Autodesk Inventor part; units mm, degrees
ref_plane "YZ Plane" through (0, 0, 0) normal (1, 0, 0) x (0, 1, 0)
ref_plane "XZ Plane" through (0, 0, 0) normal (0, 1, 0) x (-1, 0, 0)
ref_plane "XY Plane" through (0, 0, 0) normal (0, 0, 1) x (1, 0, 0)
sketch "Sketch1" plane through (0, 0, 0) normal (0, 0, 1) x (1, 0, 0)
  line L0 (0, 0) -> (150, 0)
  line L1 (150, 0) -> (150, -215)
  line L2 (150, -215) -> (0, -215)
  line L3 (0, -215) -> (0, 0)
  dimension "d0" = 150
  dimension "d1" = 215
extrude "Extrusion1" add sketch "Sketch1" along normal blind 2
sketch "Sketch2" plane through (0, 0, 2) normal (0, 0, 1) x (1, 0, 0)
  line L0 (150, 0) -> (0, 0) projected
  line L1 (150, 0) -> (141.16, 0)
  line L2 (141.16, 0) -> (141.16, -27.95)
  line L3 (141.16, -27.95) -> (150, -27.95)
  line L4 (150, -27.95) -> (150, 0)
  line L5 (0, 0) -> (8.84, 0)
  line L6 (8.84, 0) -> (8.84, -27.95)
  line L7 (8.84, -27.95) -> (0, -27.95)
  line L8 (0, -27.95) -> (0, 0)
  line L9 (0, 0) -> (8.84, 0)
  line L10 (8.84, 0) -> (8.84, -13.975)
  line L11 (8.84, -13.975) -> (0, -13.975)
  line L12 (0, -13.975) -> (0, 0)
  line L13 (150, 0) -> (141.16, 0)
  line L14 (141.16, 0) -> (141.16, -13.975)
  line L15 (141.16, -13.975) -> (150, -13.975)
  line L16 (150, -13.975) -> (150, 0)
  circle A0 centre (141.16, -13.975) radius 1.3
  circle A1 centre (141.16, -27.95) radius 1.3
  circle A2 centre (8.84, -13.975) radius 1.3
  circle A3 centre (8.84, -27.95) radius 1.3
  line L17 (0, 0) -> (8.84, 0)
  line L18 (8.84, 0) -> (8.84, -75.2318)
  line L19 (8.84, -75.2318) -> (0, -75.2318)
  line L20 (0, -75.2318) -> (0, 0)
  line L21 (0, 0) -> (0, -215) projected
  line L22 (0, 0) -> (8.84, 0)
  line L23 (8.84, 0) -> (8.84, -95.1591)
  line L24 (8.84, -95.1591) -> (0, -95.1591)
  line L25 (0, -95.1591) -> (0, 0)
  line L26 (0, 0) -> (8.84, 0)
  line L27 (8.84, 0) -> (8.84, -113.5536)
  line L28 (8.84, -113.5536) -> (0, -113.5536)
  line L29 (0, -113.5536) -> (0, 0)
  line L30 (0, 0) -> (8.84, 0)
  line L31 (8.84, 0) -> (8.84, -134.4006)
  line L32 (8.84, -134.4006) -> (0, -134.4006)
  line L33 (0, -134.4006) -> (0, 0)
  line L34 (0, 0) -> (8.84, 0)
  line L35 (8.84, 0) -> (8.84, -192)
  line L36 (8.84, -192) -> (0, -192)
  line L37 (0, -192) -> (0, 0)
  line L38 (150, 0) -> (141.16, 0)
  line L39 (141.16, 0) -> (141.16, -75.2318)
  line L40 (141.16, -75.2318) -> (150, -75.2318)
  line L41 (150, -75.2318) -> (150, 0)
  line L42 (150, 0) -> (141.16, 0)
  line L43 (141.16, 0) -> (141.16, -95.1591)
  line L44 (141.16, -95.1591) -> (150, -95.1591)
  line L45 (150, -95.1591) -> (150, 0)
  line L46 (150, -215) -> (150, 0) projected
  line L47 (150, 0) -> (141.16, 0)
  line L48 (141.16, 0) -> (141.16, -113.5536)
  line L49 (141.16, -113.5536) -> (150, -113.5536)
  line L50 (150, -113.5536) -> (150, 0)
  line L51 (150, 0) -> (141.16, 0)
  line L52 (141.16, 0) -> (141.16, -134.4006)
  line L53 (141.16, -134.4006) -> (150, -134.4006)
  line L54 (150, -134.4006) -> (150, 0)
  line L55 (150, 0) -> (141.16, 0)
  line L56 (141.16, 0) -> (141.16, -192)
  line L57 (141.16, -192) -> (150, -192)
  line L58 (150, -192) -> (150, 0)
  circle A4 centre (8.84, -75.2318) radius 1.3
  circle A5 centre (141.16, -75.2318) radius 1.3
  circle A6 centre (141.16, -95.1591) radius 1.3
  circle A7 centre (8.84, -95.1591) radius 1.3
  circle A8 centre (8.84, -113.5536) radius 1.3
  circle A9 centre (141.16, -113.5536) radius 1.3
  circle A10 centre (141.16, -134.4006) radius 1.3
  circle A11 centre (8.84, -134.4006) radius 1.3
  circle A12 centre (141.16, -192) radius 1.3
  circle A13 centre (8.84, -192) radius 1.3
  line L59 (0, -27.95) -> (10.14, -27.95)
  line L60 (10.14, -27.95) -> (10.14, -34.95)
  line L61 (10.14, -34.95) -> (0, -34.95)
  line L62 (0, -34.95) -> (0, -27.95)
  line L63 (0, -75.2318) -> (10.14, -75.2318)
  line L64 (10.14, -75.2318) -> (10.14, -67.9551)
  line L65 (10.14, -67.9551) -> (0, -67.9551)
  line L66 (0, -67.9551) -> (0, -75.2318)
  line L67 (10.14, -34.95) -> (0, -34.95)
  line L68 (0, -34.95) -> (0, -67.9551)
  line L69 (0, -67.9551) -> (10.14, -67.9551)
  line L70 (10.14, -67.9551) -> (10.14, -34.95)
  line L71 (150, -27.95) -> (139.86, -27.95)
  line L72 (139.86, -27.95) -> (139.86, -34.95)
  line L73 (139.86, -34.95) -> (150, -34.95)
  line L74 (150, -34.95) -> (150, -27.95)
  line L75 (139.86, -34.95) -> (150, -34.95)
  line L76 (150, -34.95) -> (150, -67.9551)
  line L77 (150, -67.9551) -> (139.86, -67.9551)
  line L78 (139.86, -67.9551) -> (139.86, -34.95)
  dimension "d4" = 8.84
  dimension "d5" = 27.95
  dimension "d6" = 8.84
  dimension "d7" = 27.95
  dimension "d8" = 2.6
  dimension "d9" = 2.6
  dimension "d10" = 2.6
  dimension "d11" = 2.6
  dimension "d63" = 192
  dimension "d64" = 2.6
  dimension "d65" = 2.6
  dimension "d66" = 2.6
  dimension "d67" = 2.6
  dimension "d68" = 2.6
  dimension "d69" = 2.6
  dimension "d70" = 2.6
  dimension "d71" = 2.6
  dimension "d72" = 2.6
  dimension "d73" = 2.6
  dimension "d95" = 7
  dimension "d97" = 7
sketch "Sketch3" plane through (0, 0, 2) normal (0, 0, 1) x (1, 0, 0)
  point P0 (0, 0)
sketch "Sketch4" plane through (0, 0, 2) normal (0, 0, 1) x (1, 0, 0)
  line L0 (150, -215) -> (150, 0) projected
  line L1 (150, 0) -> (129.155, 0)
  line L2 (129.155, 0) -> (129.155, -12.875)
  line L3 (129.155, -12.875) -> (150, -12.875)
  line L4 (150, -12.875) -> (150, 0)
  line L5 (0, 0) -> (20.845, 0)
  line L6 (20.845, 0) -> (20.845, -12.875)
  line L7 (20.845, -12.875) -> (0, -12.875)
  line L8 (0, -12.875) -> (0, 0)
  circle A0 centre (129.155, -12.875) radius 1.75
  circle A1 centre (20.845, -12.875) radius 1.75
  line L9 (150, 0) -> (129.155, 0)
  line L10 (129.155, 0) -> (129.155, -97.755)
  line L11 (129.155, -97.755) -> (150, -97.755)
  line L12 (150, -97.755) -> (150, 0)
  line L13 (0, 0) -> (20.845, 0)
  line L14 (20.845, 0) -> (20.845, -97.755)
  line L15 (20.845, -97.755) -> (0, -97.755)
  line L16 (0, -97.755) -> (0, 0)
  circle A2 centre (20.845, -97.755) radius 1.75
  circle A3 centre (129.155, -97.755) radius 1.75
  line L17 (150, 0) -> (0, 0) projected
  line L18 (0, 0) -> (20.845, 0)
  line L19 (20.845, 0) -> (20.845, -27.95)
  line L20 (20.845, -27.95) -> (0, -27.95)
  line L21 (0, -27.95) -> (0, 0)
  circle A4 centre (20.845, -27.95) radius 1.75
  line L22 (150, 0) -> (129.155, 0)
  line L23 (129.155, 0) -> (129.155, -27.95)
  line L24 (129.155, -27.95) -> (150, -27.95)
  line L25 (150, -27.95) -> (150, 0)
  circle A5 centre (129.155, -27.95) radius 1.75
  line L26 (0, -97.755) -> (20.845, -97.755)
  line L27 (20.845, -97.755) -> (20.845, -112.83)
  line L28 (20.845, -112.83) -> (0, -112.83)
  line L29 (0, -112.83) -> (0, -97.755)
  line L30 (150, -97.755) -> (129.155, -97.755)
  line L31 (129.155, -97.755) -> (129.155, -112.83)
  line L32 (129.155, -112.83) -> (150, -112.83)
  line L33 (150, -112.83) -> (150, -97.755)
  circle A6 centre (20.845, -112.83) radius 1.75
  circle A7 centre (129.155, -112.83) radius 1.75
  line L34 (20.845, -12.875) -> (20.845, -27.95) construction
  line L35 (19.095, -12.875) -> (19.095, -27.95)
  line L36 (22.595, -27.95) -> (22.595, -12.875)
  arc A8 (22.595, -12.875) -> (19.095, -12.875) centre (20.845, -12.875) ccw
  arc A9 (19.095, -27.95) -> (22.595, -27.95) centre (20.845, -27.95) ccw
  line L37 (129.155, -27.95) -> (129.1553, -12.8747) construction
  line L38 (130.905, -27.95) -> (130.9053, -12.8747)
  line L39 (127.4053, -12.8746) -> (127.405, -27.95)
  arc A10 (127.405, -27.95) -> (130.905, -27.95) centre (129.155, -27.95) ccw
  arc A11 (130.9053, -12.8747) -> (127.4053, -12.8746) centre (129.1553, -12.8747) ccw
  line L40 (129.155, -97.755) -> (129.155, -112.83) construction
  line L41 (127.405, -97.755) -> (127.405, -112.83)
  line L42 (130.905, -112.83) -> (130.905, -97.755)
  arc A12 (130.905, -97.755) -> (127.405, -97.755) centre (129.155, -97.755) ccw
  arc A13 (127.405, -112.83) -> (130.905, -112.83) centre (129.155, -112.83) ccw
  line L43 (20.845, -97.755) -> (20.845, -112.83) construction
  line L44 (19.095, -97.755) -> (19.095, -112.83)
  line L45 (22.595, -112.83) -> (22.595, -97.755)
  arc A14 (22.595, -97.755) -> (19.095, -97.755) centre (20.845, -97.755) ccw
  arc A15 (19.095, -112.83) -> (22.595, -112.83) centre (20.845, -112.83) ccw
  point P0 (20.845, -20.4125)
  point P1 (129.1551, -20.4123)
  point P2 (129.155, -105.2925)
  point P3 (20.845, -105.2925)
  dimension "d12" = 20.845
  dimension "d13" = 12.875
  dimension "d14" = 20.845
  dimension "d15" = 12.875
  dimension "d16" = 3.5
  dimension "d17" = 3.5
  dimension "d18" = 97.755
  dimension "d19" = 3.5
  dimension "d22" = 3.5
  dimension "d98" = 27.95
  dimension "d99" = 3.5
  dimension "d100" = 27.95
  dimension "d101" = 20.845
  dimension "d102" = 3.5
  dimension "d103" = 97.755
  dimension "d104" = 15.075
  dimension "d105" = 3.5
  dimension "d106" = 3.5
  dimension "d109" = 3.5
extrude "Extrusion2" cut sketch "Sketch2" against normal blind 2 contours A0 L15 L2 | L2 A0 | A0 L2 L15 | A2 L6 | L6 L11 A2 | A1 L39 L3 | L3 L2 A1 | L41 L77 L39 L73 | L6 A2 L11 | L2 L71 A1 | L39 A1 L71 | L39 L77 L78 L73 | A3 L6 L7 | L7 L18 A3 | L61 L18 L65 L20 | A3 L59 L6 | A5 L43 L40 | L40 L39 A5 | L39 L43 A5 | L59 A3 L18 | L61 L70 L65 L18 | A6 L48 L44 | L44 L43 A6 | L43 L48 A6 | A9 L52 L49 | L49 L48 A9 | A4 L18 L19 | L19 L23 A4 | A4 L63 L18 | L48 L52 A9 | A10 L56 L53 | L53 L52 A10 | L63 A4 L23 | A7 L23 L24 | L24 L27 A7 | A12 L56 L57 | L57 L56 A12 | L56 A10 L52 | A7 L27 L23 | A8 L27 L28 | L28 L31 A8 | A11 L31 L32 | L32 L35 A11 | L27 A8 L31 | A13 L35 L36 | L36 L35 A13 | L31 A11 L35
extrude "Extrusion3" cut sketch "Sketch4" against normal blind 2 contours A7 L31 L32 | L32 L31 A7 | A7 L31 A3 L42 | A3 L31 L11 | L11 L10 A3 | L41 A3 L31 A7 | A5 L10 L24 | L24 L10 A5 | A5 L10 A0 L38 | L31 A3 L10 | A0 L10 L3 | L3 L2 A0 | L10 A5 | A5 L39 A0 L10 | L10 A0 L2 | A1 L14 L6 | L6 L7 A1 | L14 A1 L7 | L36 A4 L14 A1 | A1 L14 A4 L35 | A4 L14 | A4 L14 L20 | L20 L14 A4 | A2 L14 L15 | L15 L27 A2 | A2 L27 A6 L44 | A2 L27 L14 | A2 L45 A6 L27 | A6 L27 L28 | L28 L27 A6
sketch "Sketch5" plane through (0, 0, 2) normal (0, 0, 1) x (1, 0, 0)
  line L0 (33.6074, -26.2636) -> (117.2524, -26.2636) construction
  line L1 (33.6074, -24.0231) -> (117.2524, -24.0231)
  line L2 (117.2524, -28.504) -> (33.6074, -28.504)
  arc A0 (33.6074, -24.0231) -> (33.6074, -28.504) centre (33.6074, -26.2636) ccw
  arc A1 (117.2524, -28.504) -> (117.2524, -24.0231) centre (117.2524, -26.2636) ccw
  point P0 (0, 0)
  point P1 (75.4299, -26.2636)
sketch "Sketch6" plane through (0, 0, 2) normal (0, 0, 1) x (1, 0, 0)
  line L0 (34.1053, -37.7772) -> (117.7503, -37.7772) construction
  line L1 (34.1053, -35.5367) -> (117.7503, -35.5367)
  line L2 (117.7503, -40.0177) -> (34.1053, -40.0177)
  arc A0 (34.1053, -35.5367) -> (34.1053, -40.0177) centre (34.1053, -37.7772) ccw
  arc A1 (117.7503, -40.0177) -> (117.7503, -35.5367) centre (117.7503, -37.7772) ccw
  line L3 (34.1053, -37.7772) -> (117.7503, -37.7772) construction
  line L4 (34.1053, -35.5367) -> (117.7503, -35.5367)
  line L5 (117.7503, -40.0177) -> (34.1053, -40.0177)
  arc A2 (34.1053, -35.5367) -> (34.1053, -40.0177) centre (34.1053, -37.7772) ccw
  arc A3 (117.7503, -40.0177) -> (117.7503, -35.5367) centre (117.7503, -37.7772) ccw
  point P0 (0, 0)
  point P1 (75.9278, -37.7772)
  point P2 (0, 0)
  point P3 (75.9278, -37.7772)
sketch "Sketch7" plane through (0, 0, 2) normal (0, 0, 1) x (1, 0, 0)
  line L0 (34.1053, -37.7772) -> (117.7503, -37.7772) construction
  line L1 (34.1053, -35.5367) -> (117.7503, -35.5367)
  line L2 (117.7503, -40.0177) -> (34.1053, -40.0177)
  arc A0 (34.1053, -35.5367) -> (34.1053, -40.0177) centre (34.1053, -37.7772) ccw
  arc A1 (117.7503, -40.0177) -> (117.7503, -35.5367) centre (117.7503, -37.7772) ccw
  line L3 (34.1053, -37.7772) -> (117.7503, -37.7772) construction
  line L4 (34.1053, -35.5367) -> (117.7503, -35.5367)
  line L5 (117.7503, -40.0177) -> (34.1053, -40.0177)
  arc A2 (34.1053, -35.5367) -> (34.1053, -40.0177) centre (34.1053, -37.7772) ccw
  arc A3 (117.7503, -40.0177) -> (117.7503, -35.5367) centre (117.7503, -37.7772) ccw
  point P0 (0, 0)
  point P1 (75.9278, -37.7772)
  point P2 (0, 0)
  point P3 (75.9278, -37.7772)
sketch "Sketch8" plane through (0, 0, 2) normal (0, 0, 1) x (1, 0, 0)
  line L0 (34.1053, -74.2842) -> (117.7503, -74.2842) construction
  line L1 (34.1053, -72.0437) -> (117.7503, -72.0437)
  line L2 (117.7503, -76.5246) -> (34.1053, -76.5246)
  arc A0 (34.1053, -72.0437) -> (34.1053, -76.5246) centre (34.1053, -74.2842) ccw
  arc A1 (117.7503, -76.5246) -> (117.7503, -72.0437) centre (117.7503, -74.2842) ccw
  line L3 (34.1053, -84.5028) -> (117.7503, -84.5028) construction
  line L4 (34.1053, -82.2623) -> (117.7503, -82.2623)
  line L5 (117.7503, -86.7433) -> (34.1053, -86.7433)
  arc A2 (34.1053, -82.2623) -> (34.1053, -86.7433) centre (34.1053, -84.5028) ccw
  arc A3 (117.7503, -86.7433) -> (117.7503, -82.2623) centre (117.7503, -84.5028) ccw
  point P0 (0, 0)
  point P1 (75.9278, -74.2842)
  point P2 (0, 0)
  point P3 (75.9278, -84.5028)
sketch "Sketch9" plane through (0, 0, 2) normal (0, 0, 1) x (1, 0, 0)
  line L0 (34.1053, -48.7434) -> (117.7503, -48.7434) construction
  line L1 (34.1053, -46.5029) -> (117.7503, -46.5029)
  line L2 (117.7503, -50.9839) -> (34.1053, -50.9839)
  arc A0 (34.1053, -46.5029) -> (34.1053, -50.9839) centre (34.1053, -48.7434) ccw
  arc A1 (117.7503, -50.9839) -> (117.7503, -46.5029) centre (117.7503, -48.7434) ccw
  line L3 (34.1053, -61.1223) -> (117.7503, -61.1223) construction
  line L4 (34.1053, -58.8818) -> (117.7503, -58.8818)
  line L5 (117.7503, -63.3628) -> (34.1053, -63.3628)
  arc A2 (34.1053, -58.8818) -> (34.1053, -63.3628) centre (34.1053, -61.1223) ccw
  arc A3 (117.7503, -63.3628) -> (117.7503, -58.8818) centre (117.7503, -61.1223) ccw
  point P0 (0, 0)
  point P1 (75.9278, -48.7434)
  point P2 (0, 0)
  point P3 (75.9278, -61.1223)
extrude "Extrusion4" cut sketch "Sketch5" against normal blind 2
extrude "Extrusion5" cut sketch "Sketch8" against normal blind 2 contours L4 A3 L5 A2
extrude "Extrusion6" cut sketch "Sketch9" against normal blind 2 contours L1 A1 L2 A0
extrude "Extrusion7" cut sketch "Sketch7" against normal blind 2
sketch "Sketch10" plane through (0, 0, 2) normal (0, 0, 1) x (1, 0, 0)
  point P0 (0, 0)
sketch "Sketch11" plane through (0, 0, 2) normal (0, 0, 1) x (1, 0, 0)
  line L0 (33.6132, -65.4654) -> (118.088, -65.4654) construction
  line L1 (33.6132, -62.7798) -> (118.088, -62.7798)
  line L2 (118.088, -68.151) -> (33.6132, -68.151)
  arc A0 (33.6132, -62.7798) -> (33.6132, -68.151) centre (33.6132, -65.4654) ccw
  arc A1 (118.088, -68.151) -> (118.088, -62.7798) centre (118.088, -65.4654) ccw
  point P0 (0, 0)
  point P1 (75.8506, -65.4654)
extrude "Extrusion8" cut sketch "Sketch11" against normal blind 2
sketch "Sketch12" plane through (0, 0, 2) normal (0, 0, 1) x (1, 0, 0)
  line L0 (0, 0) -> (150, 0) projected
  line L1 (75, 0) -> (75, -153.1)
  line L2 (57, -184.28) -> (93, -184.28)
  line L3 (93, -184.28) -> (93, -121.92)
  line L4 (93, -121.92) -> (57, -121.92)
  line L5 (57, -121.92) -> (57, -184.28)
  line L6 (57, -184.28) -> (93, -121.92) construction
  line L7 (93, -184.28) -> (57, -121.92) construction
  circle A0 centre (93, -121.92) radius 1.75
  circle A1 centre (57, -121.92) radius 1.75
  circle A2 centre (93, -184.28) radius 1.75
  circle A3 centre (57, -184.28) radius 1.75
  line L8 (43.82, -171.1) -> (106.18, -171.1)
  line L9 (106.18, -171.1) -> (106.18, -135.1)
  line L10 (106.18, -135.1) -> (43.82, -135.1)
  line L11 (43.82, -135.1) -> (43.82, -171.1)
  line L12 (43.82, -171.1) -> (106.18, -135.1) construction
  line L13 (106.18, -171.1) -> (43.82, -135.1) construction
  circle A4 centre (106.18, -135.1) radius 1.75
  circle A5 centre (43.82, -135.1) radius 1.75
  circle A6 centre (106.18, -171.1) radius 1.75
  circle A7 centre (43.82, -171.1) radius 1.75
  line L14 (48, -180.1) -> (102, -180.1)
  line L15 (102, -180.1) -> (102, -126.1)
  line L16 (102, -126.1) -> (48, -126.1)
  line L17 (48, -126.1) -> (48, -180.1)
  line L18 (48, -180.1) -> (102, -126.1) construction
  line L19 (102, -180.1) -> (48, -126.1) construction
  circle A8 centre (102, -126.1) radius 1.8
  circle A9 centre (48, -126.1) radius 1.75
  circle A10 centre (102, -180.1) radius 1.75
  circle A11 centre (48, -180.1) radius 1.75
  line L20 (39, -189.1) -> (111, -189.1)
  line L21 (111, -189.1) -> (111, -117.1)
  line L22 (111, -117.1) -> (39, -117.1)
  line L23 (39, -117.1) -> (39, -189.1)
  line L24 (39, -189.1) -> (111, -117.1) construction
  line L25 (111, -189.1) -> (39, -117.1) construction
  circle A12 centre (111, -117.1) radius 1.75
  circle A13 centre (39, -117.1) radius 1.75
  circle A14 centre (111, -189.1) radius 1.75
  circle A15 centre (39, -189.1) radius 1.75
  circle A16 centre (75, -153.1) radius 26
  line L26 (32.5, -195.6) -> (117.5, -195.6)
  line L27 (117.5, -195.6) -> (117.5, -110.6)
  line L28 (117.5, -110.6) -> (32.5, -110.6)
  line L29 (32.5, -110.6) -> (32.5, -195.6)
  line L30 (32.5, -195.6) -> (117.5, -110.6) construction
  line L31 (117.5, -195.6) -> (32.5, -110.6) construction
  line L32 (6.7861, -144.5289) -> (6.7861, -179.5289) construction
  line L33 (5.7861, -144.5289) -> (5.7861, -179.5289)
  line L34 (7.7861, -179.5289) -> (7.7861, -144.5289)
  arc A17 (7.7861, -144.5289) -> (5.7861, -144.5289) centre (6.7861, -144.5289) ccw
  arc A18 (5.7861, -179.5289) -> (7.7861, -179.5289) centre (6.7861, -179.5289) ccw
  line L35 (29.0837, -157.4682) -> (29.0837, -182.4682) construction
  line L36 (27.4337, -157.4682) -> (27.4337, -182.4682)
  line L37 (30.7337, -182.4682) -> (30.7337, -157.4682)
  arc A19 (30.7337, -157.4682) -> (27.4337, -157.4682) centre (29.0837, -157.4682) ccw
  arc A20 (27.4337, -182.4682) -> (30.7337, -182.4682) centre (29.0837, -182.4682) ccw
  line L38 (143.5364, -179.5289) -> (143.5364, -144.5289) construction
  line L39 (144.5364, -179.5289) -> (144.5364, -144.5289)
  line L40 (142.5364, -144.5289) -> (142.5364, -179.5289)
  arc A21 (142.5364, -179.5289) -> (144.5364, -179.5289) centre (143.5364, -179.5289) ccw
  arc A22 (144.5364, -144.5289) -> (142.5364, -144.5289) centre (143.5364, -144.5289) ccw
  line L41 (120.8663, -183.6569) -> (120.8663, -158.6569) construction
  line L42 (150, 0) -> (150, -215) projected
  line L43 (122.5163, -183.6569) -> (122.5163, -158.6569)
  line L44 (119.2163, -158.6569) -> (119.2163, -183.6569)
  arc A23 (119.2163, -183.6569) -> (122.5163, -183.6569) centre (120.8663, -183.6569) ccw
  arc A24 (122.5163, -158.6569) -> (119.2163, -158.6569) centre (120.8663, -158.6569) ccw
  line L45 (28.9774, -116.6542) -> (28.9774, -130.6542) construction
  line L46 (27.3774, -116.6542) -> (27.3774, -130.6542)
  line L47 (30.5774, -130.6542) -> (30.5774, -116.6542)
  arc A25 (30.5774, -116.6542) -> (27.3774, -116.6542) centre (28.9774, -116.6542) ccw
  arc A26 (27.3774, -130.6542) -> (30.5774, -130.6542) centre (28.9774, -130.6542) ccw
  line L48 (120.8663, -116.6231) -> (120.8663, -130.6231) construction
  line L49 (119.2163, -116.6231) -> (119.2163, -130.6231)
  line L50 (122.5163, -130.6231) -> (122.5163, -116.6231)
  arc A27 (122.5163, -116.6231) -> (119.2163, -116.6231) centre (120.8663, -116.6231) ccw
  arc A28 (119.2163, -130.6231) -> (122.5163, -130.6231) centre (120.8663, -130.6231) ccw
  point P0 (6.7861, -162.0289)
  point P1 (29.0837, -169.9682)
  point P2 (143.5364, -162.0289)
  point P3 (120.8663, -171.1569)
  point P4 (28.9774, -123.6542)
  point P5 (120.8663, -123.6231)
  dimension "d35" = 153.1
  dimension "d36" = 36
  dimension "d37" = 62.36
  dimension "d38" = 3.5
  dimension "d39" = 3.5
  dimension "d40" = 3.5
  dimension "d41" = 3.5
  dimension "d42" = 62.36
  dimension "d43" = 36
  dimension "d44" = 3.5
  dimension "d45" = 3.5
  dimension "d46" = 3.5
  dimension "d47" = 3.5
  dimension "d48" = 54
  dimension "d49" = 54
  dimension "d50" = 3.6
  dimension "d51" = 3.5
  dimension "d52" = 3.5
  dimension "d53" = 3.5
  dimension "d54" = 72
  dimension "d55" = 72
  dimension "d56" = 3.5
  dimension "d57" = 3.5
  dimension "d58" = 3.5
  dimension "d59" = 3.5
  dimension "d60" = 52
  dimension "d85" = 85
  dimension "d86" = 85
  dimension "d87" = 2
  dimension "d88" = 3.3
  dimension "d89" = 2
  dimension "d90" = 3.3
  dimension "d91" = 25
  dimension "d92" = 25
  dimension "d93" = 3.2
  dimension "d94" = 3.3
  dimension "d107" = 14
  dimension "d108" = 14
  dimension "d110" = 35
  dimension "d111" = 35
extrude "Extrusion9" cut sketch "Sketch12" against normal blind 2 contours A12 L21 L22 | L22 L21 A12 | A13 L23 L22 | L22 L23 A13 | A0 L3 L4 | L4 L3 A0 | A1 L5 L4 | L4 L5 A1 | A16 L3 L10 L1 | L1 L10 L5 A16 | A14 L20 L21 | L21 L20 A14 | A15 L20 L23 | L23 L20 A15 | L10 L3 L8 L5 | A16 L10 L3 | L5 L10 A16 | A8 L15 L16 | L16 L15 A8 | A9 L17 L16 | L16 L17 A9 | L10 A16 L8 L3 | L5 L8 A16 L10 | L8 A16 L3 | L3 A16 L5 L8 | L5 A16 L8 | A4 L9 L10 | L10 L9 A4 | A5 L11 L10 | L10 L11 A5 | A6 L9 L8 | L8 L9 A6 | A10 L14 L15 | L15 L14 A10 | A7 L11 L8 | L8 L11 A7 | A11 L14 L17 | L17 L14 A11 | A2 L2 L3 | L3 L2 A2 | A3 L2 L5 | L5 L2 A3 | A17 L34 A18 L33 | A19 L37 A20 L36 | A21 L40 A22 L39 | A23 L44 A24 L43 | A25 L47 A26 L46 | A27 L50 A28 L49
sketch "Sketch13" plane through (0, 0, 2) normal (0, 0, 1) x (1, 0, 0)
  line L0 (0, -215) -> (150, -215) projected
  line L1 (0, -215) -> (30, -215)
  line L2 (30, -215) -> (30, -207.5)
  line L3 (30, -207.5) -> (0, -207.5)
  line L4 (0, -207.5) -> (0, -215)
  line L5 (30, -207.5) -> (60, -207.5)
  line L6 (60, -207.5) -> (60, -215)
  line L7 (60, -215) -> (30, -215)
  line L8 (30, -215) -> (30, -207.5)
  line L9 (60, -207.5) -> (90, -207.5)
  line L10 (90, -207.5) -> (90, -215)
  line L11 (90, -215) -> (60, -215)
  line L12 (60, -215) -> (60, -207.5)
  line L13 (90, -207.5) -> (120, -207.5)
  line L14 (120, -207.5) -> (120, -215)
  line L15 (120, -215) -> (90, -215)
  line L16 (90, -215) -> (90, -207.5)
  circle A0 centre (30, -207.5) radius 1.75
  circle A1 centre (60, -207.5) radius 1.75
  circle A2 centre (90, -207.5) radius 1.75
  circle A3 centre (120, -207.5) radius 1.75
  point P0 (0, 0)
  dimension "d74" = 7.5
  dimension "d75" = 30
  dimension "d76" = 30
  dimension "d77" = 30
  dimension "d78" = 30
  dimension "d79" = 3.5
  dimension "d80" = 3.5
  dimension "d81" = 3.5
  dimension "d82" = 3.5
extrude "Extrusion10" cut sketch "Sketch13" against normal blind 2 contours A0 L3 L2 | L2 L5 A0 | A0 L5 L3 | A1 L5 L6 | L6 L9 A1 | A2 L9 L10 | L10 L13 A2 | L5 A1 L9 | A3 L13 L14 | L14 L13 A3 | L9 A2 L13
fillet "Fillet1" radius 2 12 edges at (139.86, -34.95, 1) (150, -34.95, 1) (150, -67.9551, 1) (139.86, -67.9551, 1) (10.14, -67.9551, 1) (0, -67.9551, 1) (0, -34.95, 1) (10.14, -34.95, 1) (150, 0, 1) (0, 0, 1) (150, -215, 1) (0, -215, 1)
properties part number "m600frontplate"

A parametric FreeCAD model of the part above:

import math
import FreeCAD as App
import Part
import Sketcher
from FreeCAD import Vector
Q = App.Units.Quantity


def edges_at(feature, points):
    """Names of the edges that pass closest to the given points."""
    edges = feature.Shape.Edges
    near = lambda p: min(range(len(edges)), key=lambda i: edges[i].distToShape(Part.Vertex(*p))[0])
    return sorted({f"Edge{near(p) + 1}" for p in points})

doc = App.newDocument("Part")
body = doc.addObject("PartDesign::Body", "Body")

# Sketch on XY plane
sketch1 = body.newObject("Sketcher::SketchObject", "Sketch")
sketch1.AttachmentSupport = (doc.getObject("XY_Plane"), [""])
sketch1.MapMode = "FlatFace"
sketch1.addGeometry([
    Part.LineSegment(Vector(150, 0, 0), Vector(0, 0, 0)),
    Part.LineSegment(Vector(0, 0, 0), Vector(0, -215, 0)),
    Part.LineSegment(Vector(0, -215, 0), Vector(150, -215, 0)),
    Part.LineSegment(Vector(150, -215, 0), Vector(150, 0, 0)),
], False)
sketch1.addConstraint([
    Sketcher.Constraint("Coincident", 0, 2, 1, 1),
    Sketcher.Constraint("Coincident", 1, 2, 2, 1),
    Sketcher.Constraint("Coincident", 2, 2, 3, 1),
    Sketcher.Constraint("Coincident", 3, 2, 0, 1),
    Sketcher.Constraint("Horizontal", 0),
    Sketcher.Constraint("Vertical", 1),
    Sketcher.Constraint("Horizontal", 2),
    Sketcher.Constraint("Vertical", 3),
    Sketcher.Constraint("Coincident", 0, 2, -1, 1),
    Sketcher.Constraint("DistanceX", 0, 2, 0, 1, Q("150 mm")),
    Sketcher.Constraint("DistanceY", 1, 2, 1, 1, Q("215 mm")),
])
pad1 = body.newObject("PartDesign::Pad", "Pad")
pad1.Profile = sketch1
pad1.Length = 2

# Sketch on XY plane
sketch2 = body.newObject("Sketcher::SketchObject", "Sketch001")
sketch2.AttachmentSupport = (doc.getObject("XY_Plane"), [""])
sketch2.MapMode = "FlatFace"
sketch2.AttachmentOffset = App.Placement(Vector(0, 0, 2), App.Rotation())
sketch2.addGeometry([
    Part.Circle(Vector(141.2, -14, 0), Vector(0, 0, 1), 1.3),  # 0
    Part.Circle(Vector(8.8, -14, 0), Vector(0, 0, 1), 1.3),  # 1
    Part.Circle(Vector(141.2, -27.9, 0), Vector(0, 0, 1), 1.3),  # 2
    Part.LineSegment(Vector(150, -68, 0), Vector(150, -35, 0)),  # 3
    Part.LineSegment(Vector(150, -35, 0), Vector(139.9, -35, 0)),  # 4
    Part.LineSegment(Vector(139.9, -35, 0), Vector(139.9, -68, 0)),  # 5
    Part.LineSegment(Vector(139.9, -68, 0), Vector(150, -68, 0)),  # 6
    Part.Circle(Vector(8.8, -27.9, 0), Vector(0, 0, 1), 1.3),  # 7
    Part.LineSegment(Vector(0, -35, 0), Vector(0, -68, 0)),  # 8
    Part.LineSegment(Vector(0, -68, 0), Vector(10.1, -68, 0)),  # 9
    Part.LineSegment(Vector(10.1, -68, 0), Vector(10.1, -35, 0)),  # 10
    Part.LineSegment(Vector(10.1, -35, 0), Vector(0, -35, 0)),  # 11
    Part.Circle(Vector(141.2, -75.2, 0), Vector(0, 0, 1), 1.3),  # 12
    Part.Circle(Vector(141.2, -95.2, 0), Vector(0, 0, 1), 1.3),  # 13
    Part.Circle(Vector(141.2, -113.6, 0), Vector(0, 0, 1), 1.3),  # 14
    Part.Circle(Vector(8.8, -75.2, 0), Vector(0, 0, 1), 1.3),  # 15
    Part.Circle(Vector(141.2, -134.4, 0), Vector(0, 0, 1), 1.3),  # 16
    Part.Circle(Vector(8.8, -95.2, 0), Vector(0, 0, 1), 1.3),  # 17
    Part.Circle(Vector(141.2, -192, 0), Vector(0, 0, 1), 1.3),  # 18
    Part.Circle(Vector(8.8, -113.6, 0), Vector(0, 0, 1), 1.3),  # 19
    Part.Circle(Vector(8.8, -134.4, 0), Vector(0, 0, 1), 1.3),  # 20
    Part.Circle(Vector(8.8, -192, 0), Vector(0, 0, 1), 1.3),  # 21
], False)
sketch2.addConstraint([
    Sketcher.Constraint("Coincident", 3, 2, 4, 1),
    Sketcher.Constraint("Coincident", 4, 2, 5, 1),
    Sketcher.Constraint("Coincident", 5, 2, 6, 1),
    Sketcher.Constraint("Coincident", 6, 2, 3, 1),
    Sketcher.Constraint("Coincident", 8, 2, 9, 1),
    Sketcher.Constraint("Coincident", 9, 2, 10, 1),
    Sketcher.Constraint("Coincident", 10, 2, 11, 1),
    Sketcher.Constraint("Coincident", 11, 2, 8, 1),
    Sketcher.Constraint("Vertical", 3),
    Sketcher.Constraint("Horizontal", 4),
    Sketcher.Constraint("Vertical", 5),
    Sketcher.Constraint("Horizontal", 6),
    Sketcher.Constraint("Vertical", 8),
    Sketcher.Constraint("Horizontal", 9),
    Sketcher.Constraint("Vertical", 10),
    Sketcher.Constraint("Horizontal", 11),
    Sketcher.Constraint("Equal", 0, 1),
    Sketcher.Constraint("Equal", 1, 2),
    Sketcher.Constraint("Equal", 2, 7),
    Sketcher.Constraint("Equal", 7, 12),
    Sketcher.Constraint("Equal", 12, 13),
    Sketcher.Constraint("Equal", 13, 14),
    Sketcher.Constraint("Equal", 14, 15),
    Sketcher.Constraint("Equal", 15, 16),
    Sketcher.Constraint("Equal", 16, 17),
    Sketcher.Constraint("Equal", 17, 18),
    Sketcher.Constraint("Equal", 18, 19),
    Sketcher.Constraint("Equal", 19, 20),
    Sketcher.Constraint("Equal", 20, 21),
    Sketcher.Constraint("PointOnObject", 8, 2, -2),
    Sketcher.Constraint("Horizontal", 0, 3, 1, 3),
    Sketcher.Constraint("Horizontal", 2, 3, 7, 3),
    Sketcher.Constraint("Horizontal", 12, 3, 15, 3),
    Sketcher.Constraint("Horizontal", 13, 3, 17, 3),
    Sketcher.Constraint("Horizontal", 14, 3, 19, 3),
    Sketcher.Constraint("Horizontal", 16, 3, 20, 3),
    Sketcher.Constraint("Horizontal", 18, 3, 21, 3),
    Sketcher.Constraint("Horizontal", 6, 2, 8, 2),
    Sketcher.Constraint("Horizontal", 4, 2, 10, 2),
    Sketcher.Constraint("Vertical", 0, 3, 2, 3),
    Sketcher.Constraint("Vertical", 1, 3, 7, 3),
    Sketcher.Constraint("Vertical", 2, 3, 12, 3),
    Sketcher.Constraint("Vertical", 12, 3, 13, 3),
    Sketcher.Constraint("Vertical", 13, 3, 14, 3),
    Sketcher.Constraint("Vertical", 7, 3, 15, 3),
    Sketcher.Constraint("Vertical", 14, 3, 16, 3),
    Sketcher.Constraint("Vertical", 15, 3, 17, 3),
    Sketcher.Constraint("Vertical", 16, 3, 18, 3),
    Sketcher.Constraint("Vertical", 17, 3, 19, 3),
    Sketcher.Constraint("Vertical", 19, 3, 20, 3),
    Sketcher.Constraint("Vertical", 20, 3, 21, 3),
    Sketcher.Constraint("Equal", 6, 9),
    Sketcher.Constraint("Diameter", 0, Q("2.6 mm")),
    Sketcher.Constraint("DistanceY", 18, 3, -1, 1, Q("192 mm")),
    Sketcher.Constraint("DistanceY", 3, 2, 2, 3, Q("7 mm")),
    Sketcher.Constraint("DistanceX", -1, 1, 1, 3, Q("8.84 mm")),
    Sketcher.Constraint("DistanceY", 2, 3, -1, 1, Q("27.95 mm")),
    Sketcher.Constraint("DistanceX", 2, 3, 3, 2, Q("8.84 mm")),
    Sketcher.Constraint("DistanceX", -1, 1, 3, 2, Q("150 mm")),
    Sketcher.Constraint("DistanceX", 4, 2, 4, 1, Q("10.14 mm")),
    Sketcher.Constraint("DistanceY", 3, 1, 3, 2, Q("33.005 mm")),
    Sketcher.Constraint("DistanceY", 8, 2, 1, 3, Q("53.98 mm")),
    Sketcher.Constraint("DistanceY", 13, 3, -1, 1, Q("95.159 mm")),
    Sketcher.Constraint("DistanceY", 16, 3, 14, 3, Q("20.847 mm")),
    Sketcher.Constraint("DistanceY", 12, 3, -1, 1, Q("75.2318 mm")),
    Sketcher.Constraint("DistanceY", 14, 3, -1, 1, Q("113.5536 mm")),
])
pocket1 = body.newObject("PartDesign::Pocket", "Pocket")
pocket1.Profile = sketch2
pocket1.Length = 2

# Sketch on XY plane
sketch3 = body.newObject("Sketcher::SketchObject", "Sketch002")
sketch3.AttachmentSupport = (doc.getObject("XY_Plane"), [""])
sketch3.MapMode = "FlatFace"
sketch3.AttachmentOffset = App.Placement(Vector(0, 0, 2), App.Rotation())
sketch3.addGeometry([
    Part.ArcOfCircle(Part.Circle(Vector(129.2, -112.8, 0), Vector(0, 0, 1), 1.8), math.radians(180), math.radians(360)),  # 0
    Part.LineSegment(Vector(130.9, -112.8, 0), Vector(130.9, -97.8, 0)),  # 1
    Part.ArcOfCircle(Part.Circle(Vector(129.2, -97.8, 0), Vector(0, 0, 1), 1.8), math.radians(0), math.radians(180)),  # 2
    Part.LineSegment(Vector(127.4, -97.8, 0), Vector(127.4, -112.8, 0)),  # 3
    Part.LineSegment(Vector(130.9, -27.9, 0), Vector(130.9, -12.9, 0)),  # 4
    Part.ArcOfCircle(Part.Circle(Vector(129.2, -12.9, 0), Vector(0, 0, 1), 1.8), math.radians(0), math.radians(180)),  # 5
    Part.LineSegment(Vector(127.4, -12.9, 0), Vector(127.4, -27.9, 0)),  # 6
    Part.ArcOfCircle(Part.Circle(Vector(129.2, -27.9, 0), Vector(0, 0, 1), 1.8), math.radians(180), math.radians(360)),  # 7
    Part.ArcOfCircle(Part.Circle(Vector(20.8, -12.9, 0), Vector(0, 0, 1), 1.8), math.radians(0), math.radians(180)),  # 8
    Part.LineSegment(Vector(19.1, -12.9, 0), Vector(19.1, -27.9, 0)),  # 9
    Part.ArcOfCircle(Part.Circle(Vector(20.8, -27.9, 0), Vector(0, 0, 1), 1.8), math.radians(180), math.radians(360)),  # 10
    Part.LineSegment(Vector(22.6, -27.9, 0), Vector(22.6, -12.9, 0)),  # 11
    Part.LineSegment(Vector(19.1, -97.8, 0), Vector(19.1, -112.8, 0)),  # 12
    Part.ArcOfCircle(Part.Circle(Vector(20.8, -112.8, 0), Vector(0, 0, 1), 1.8), math.radians(180), math.radians(360)),  # 13
    Part.LineSegment(Vector(22.6, -112.8, 0), Vector(22.6, -97.8, 0)),  # 14
    Part.ArcOfCircle(Part.Circle(Vector(20.8, -97.8, 0), Vector(0, 0, 1), 1.8), math.radians(0), math.radians(180)),  # 15
], False)
sketch3.addConstraint([
    Sketcher.Constraint("Tangent", 0, 2, 1, 1),
    Sketcher.Constraint("Tangent", 1, 2, 2, 1),
    Sketcher.Constraint("Tangent", 2, 2, 3, 1),
    Sketcher.Constraint("Tangent", 3, 2, 0, 1),
    Sketcher.Constraint("Tangent", 4, 2, 5, 1),
    Sketcher.Constraint("Tangent", 5, 2, 6, 1),
    Sketcher.Constraint("Tangent", 6, 2, 7, 1),
    Sketcher.Constraint("Tangent", 7, 2, 4, 1),
    Sketcher.Constraint("Tangent", 8, 2, 9, 1),
    Sketcher.Constraint("Tangent", 9, 2, 10, 1),
    Sketcher.Constraint("Tangent", 10, 2, 11, 1),
    Sketcher.Constraint("Tangent", 11, 2, 8, 1),
    Sketcher.Constraint("Tangent", 12, 2, 13, 1),
    Sketcher.Constraint("Tangent", 13, 2, 14, 1),
    Sketcher.Constraint("Tangent", 14, 2, 15, 1),
    Sketcher.Constraint("Tangent", 15, 2, 12, 1),
    Sketcher.Constraint("Vertical", 1),
    Sketcher.Constraint("Vertical", 3),
    Sketcher.Constraint("Vertical", 9),
    Sketcher.Constraint("Vertical", 11),
    Sketcher.Constraint("Vertical", 12),
    Sketcher.Constraint("Vertical", 14),
    Sketcher.Constraint("Equal", 2, 5),
    Sketcher.Constraint("Equal", 5, 7),
    Sketcher.Constraint("Equal", 7, 8),
    Sketcher.Constraint("Equal", 10, 13),
    Sketcher.Constraint("Horizontal", 5, 3, 8, 3),
    Sketcher.Constraint("Horizontal", 7, 3, 10, 3),
    Sketcher.Constraint("Horizontal", 0, 3, 13, 3),
    Sketcher.Constraint("Horizontal", 2, 3, 15, 3),
    Sketcher.Constraint("Horizontal", 4, 2, 5, 2),
    Sketcher.Constraint("Vertical", 2, 3, 5, 3),
    Sketcher.Constraint("Vertical", 10, 3, 13, 3),
    Sketcher.Constraint("Equal", 3, 9),
    Sketcher.Constraint("Radius", 0, Q("1.75 mm")),
    Sketcher.Constraint("DistanceY", 1, 1, 1, 2, Q("15.075 mm")),
    Sketcher.Constraint("DistanceY", 7, 3, -1, 1, Q("27.95 mm")),
    Sketcher.Constraint("DistanceY", 2, 3, -1, 1, Q("97.755 mm")),
    Sketcher.Constraint("DistanceX", -1, 1, 8, 3, Q("20.845 mm")),
    Sketcher.Constraint("DistanceX", 8, 3, 5, 3, Q("108.31 mm")),
])
pocket2 = body.newObject("PartDesign::Pocket", "Pocket001")
pocket2.Profile = sketch3
pocket2.Length = 2

# Sketch on XY plane
sketch4 = body.newObject("Sketcher::SketchObject", "Sketch003")
sketch4.AttachmentSupport = (doc.getObject("XY_Plane"), [""])
sketch4.MapMode = "FlatFace"
sketch4.AttachmentOffset = App.Placement(Vector(0, 0, 2), App.Rotation())
sketch4.addGeometry([
    Part.LineSegment(Vector(117.3, -24, 0), Vector(33.6, -24, 0)),
    Part.ArcOfCircle(Part.Circle(Vector(33.6, -26.3, 0), Vector(0, 0, 1), 2.2), math.radians(90), math.radians(270)),
    Part.LineSegment(Vector(33.6, -28.5, 0), Vector(117.3, -28.5, 0)),
    Part.ArcOfCircle(Part.Circle(Vector(117.3, -26.3, 0), Vector(0, 0, 1), 2.2), math.radians(-90), math.radians(90)),
], False)
sketch4.addConstraint([
    Sketcher.Constraint("Tangent", 0, 2, 1, 1),
    Sketcher.Constraint("Tangent", 1, 2, 2, 1),
    Sketcher.Constraint("Tangent", 2, 2, 3, 1),
    Sketcher.Constraint("Tangent", 3, 2, 0, 1),
    Sketcher.Constraint("Horizontal", 0),
    Sketcher.Constraint("Horizontal", 2),
    Sketcher.Constraint("Radius", 1, Q("2.2405 mm")),
    Sketcher.Constraint("DistanceX", 0, 2, 0, 1, Q("83.645 mm")),
    Sketcher.Constraint("DistanceY", 0, 2, -1, 1, Q("24.023 mm")),
    Sketcher.Constraint("DistanceX", -1, 1, 1, 3, Q("33.6074 mm")),
])
pocket3 = body.newObject("PartDesign::Pocket", "Pocket002")
pocket3.Profile = sketch4
pocket3.Length = 2

# Sketch on XY plane
sketch5 = body.newObject("Sketcher::SketchObject", "Sketch004")
sketch5.AttachmentSupport = (doc.getObject("XY_Plane"), [""])
sketch5.MapMode = "FlatFace"
sketch5.AttachmentOffset = App.Placement(Vector(0, 0, 2), App.Rotation())
sketch5.addGeometry([
    Part.LineSegment(Vector(117.8, -82.3, 0), Vector(34.1, -82.3, 0)),
    Part.ArcOfCircle(Part.Circle(Vector(34.1, -84.5, 0), Vector(0, 0, 1), 2.2), math.radians(90), math.radians(270)),
    Part.LineSegment(Vector(34.1, -86.7, 0), Vector(117.8, -86.7, 0)),
    Part.ArcOfCircle(Part.Circle(Vector(117.8, -84.5, 0), Vector(0, 0, 1), 2.2), math.radians(-90), math.radians(90)),
], False)
sketch5.addConstraint([
    Sketcher.Constraint("Tangent", 0, 2, 1, 1),
    Sketcher.Constraint("Tangent", 1, 2, 2, 1),
    Sketcher.Constraint("Tangent", 2, 2, 3, 1),
    Sketcher.Constraint("Tangent", 3, 2, 0, 1),
    Sketcher.Constraint("Horizontal", 0),
    Sketcher.Constraint("Horizontal", 2),
    Sketcher.Constraint("Radius", 1, Q("2.2405 mm")),
    Sketcher.Constraint("DistanceX", 0, 2, 0, 1, Q("83.645 mm")),
    Sketcher.Constraint("DistanceX", -1, 1, 1, 3, Q("34.1053 mm")),
    Sketcher.Constraint("DistanceY", 1, 3, -1, 1, Q("84.5028 mm")),
])
pocket4 = body.newObject("PartDesign::Pocket", "Pocket003")
pocket4.Profile = sketch5
pocket4.Length = 2

# Sketch on XY plane
sketch6 = body.newObject("Sketcher::SketchObject", "Sketch005")
sketch6.AttachmentSupport = (doc.getObject("XY_Plane"), [""])
sketch6.MapMode = "FlatFace"
sketch6.AttachmentOffset = App.Placement(Vector(0, 0, 2), App.Rotation())
sketch6.addGeometry([
    Part.LineSegment(Vector(117.8, -46.5, 0), Vector(34.1, -46.5, 0)),
    Part.ArcOfCircle(Part.Circle(Vector(34.1, -48.7, 0), Vector(0, 0, 1), 2.2), math.radians(90), math.radians(270)),
    Part.LineSegment(Vector(34.1, -51, 0), Vector(117.8, -51, 0)),
    Part.ArcOfCircle(Part.Circle(Vector(117.8, -48.7, 0), Vector(0, 0, 1), 2.2), math.radians(-90), math.radians(90)),
], False)
sketch6.addConstraint([
    Sketcher.Constraint("Tangent", 0, 2, 1, 1),
    Sketcher.Constraint("Tangent", 1, 2, 2, 1),
    Sketcher.Constraint("Tangent", 2, 2, 3, 1),
    Sketcher.Constraint("Tangent", 3, 2, 0, 1),
    Sketcher.Constraint("Horizontal", 0),
    Sketcher.Constraint("Horizontal", 2),
    Sketcher.Constraint("Radius", 1, Q("2.2405 mm")),
    Sketcher.Constraint("DistanceX", 0, 2, 0, 1, Q("83.645 mm")),
    Sketcher.Constraint("DistanceY", 0, 2, -1, 1, Q("46.503 mm")),
    Sketcher.Constraint("DistanceX", -1, 1, 1, 3, Q("34.1053 mm")),
])
pocket5 = body.newObject("PartDesign::Pocket", "Pocket004")
pocket5.Profile = sketch6
pocket5.Length = 2

# Sketch on XY plane
sketch7 = body.newObject("Sketcher::SketchObject", "Sketch006")
sketch7.AttachmentSupport = (doc.getObject("XY_Plane"), [""])
sketch7.MapMode = "FlatFace"
sketch7.AttachmentOffset = App.Placement(Vector(0, 0, 2), App.Rotation())
sketch7.addGeometry([
    Part.LineSegment(Vector(117.8, -35.5, 0), Vector(34.1, -35.5, 0)),
    Part.ArcOfCircle(Part.Circle(Vector(34.1, -37.8, 0), Vector(0, 0, 1), 2.2), math.radians(90), math.radians(270)),
    Part.LineSegment(Vector(34.1, -40, 0), Vector(117.8, -40, 0)),
    Part.ArcOfCircle(Part.Circle(Vector(117.8, -37.8, 0), Vector(0, 0, 1), 2.2), math.radians(-90), math.radians(90)),
], False)
sketch7.addConstraint([
    Sketcher.Constraint("Tangent", 0, 2, 1, 1),
    Sketcher.Constraint("Tangent", 1, 2, 2, 1),
    Sketcher.Constraint("Tangent", 2, 2, 3, 1),
    Sketcher.Constraint("Tangent", 3, 2, 0, 1),
    Sketcher.Constraint("Horizontal", 0),
    Sketcher.Constraint("Horizontal", 2),
    Sketcher.Constraint("Radius", 1, Q("2.2405 mm")),
    Sketcher.Constraint("DistanceX", 0, 2, 0, 1, Q("83.645 mm")),
    Sketcher.Constraint("DistanceX", -1, 1, 1, 3, Q("34.1053 mm")),
    Sketcher.Constraint("DistanceY", 1, 3, -1, 1, Q("37.7772 mm")),
])
pocket6 = body.newObject("PartDesign::Pocket", "Pocket005")
pocket6.Profile = sketch7
pocket6.Length = 2

# Sketch on XY plane
sketch8 = body.newObject("Sketcher::SketchObject", "Sketch007")
sketch8.AttachmentSupport = (doc.getObject("XY_Plane"), [""])
sketch8.MapMode = "FlatFace"
sketch8.AttachmentOffset = App.Placement(Vector(0, 0, 2), App.Rotation())
sketch8.addGeometry([
    Part.LineSegment(Vector(118.1, -62.8, 0), Vector(33.6, -62.8, 0)),
    Part.ArcOfCircle(Part.Circle(Vector(33.6, -65.5, 0), Vector(0, 0, 1), 2.7), math.radians(90), math.radians(270)),
    Part.LineSegment(Vector(33.6, -68.2, 0), Vector(118.1, -68.2, 0)),
    Part.ArcOfCircle(Part.Circle(Vector(118.1, -65.5, 0), Vector(0, 0, 1), 2.7), math.radians(-90), math.radians(90)),
], False)
sketch8.addConstraint([
    Sketcher.Constraint("Tangent", 0, 2, 1, 1),
    Sketcher.Constraint("Tangent", 1, 2, 2, 1),
    Sketcher.Constraint("Tangent", 2, 2, 3, 1),
    Sketcher.Constraint("Tangent", 3, 2, 0, 1),
    Sketcher.Constraint("Horizontal", 0),
    Sketcher.Constraint("Horizontal", 2),
    Sketcher.Constraint("Radius", 1, Q("2.6856 mm")),
    Sketcher.Constraint("DistanceX", 0, 2, 0, 1, Q("84.4748 mm")),
    Sketcher.Constraint("DistanceX", -1, 1, 3, 3, Q("118.088 mm")),
    Sketcher.Constraint("DistanceY", 1, 2, -1, 1, Q("68.151 mm")),
])
pocket7 = body.newObject("PartDesign::Pocket", "Pocket006")
pocket7.Profile = sketch8
pocket7.Length = 2

# Sketch on XY plane
sketch9 = body.newObject("Sketcher::SketchObject", "Sketch008")
sketch9.AttachmentSupport = (doc.getObject("XY_Plane"), [""])
sketch9.MapMode = "FlatFace"
sketch9.AttachmentOffset = App.Placement(Vector(0, 0, 2), App.Rotation())
sketch9.addGeometry([
    Part.Circle(Vector(111, -117.1, 0), Vector(0, 0, 1), 1.8),  # 0
    Part.Circle(Vector(39, -117.1, 0), Vector(0, 0, 1), 1.8),  # 1
    Part.Circle(Vector(93, -121.9, 0), Vector(0, 0, 1), 1.8),  # 2
    Part.Circle(Vector(57, -121.9, 0), Vector(0, 0, 1), 1.8),  # 3
    Part.Circle(Vector(75, -153.1, 0), Vector(0, 0, 1), 26),  # 4
    Part.Circle(Vector(111, -189.1, 0), Vector(0, 0, 1), 1.8),  # 5
    Part.Circle(Vector(39, -189.1, 0), Vector(0, 0, 1), 1.8),  # 6
    Part.Circle(Vector(102, -126.1, 0), Vector(0, 0, 1), 1.8),  # 7
    Part.Circle(Vector(48, -126.1, 0), Vector(0, 0, 1), 1.8),  # 8
    Part.Circle(Vector(106.2, -135.1, 0), Vector(0, 0, 1), 1.8),  # 9
    Part.Circle(Vector(43.8, -135.1, 0), Vector(0, 0, 1), 1.8),  # 10
    Part.Circle(Vector(106.2, -171.1, 0), Vector(0, 0, 1), 1.8),  # 11
    Part.Circle(Vector(102, -180.1, 0), Vector(0, 0, 1), 1.8),  # 12
    Part.Circle(Vector(43.8, -171.1, 0), Vector(0, 0, 1), 1.8),  # 13
    Part.Circle(Vector(48, -180.1, 0), Vector(0, 0, 1), 1.8),  # 14
    Part.Circle(Vector(93, -184.3, 0), Vector(0, 0, 1), 1.8),  # 15
    Part.Circle(Vector(57, -184.3, 0), Vector(0, 0, 1), 1.8),  # 16
    Part.ArcOfCircle(Part.Circle(Vector(6.8, -144.5, 0), Vector(0, 0, 1), 1), math.radians(0), math.radians(180)),  # 17
    Part.LineSegment(Vector(5.8, -144.5, 0), Vector(5.8, -179.5, 0)),  # 18
    Part.ArcOfCircle(Part.Circle(Vector(6.8, -179.5, 0), Vector(0, 0, 1), 1), math.radians(180), math.radians(360)),  # 19
    Part.LineSegment(Vector(7.8, -179.5, 0), Vector(7.8, -144.5, 0)),  # 20
    Part.ArcOfCircle(Part.Circle(Vector(29.1, -157.5, 0), Vector(0, 0, 1), 1.6), math.radians(0), math.radians(180)),  # 21
    Part.LineSegment(Vector(27.4, -157.5, 0), Vector(27.4, -182.5, 0)),  # 22
    Part.ArcOfCircle(Part.Circle(Vector(29.1, -182.5, 0), Vector(0, 0, 1), 1.6), math.radians(180), math.radians(360)),  # 23
    Part.LineSegment(Vector(30.7, -182.5, 0), Vector(30.7, -157.5, 0)),  # 24
    Part.ArcOfCircle(Part.Circle(Vector(143.5, -179.5, 0), Vector(0, 0, 1), 1), math.radians(180), math.radians(360)),  # 25
    Part.LineSegment(Vector(144.5, -179.5, 0), Vector(144.5, -144.5, 0)),  # 26
    Part.ArcOfCircle(Part.Circle(Vector(143.5, -144.5, 0), Vector(0, 0, 1), 1), math.radians(0), math.radians(180)),  # 27
    Part.LineSegment(Vector(142.5, -144.5, 0), Vector(142.5, -179.5, 0)),  # 28
    Part.ArcOfCircle(Part.Circle(Vector(120.9, -183.7, 0), Vector(0, 0, 1), 1.6), math.radians(180), math.radians(360)),  # 29
    Part.LineSegment(Vector(122.5, -183.7, 0), Vector(122.5, -158.7, 0)),  # 30
    Part.ArcOfCircle(Part.Circle(Vector(120.9, -158.7, 0), Vector(0, 0, 1), 1.7), math.radians(0), math.radians(180)),  # 31
    Part.LineSegment(Vector(119.2, -158.7, 0), Vector(119.2, -183.7, 0)),  # 32
    Part.ArcOfCircle(Part.Circle(Vector(29, -116.7, 0), Vector(0, 0, 1), 1.6), math.radians(0), math.radians(180)),  # 33
    Part.LineSegment(Vector(27.4, -116.7, 0), Vector(27.4, -130.7, 0)),  # 34
    Part.ArcOfCircle(Part.Circle(Vector(29, -130.7, 0), Vector(0, 0, 1), 1.6), math.radians(180), math.radians(360)),  # 35
    Part.LineSegment(Vector(30.6, -130.7, 0), Vector(30.6, -116.7, 0)),  # 36
    Part.ArcOfCircle(Part.Circle(Vector(120.9, -116.6, 0), Vector(0, 0, 1), 1.7), math.radians(0), math.radians(180)),  # 37
    Part.LineSegment(Vector(119.2, -116.6, 0), Vector(119.2, -130.6, 0)),  # 38
    Part.ArcOfCircle(Part.Circle(Vector(120.9, -130.6, 0), Vector(0, 0, 1), 1.6), math.radians(180), math.radians(360)),  # 39
    Part.LineSegment(Vector(122.5, -130.6, 0), Vector(122.5, -116.6, 0)),  # 40
], False)
sketch9.addConstraint([
    Sketcher.Constraint("Tangent", 17, 2, 18, 1),
    Sketcher.Constraint("Tangent", 18, 2, 19, 1),
    Sketcher.Constraint("Tangent", 19, 2, 20, 1),
    Sketcher.Constraint("Tangent", 20, 2, 17, 1),
    Sketcher.Constraint("Tangent", 21, 2, 22, 1),
    Sketcher.Constraint("Tangent", 22, 2, 23, 1),
    Sketcher.Constraint("Tangent", 23, 2, 24, 1),
    Sketcher.Constraint("Tangent", 24, 2, 21, 1),
    Sketcher.Constraint("Tangent", 25, 2, 26, 1),
    Sketcher.Constraint("Tangent", 26, 2, 27, 1),
    Sketcher.Constraint("Tangent", 27, 2, 28, 1),
    Sketcher.Constraint("Tangent", 28, 2, 25, 1),
    Sketcher.Constraint("Tangent", 29, 2, 30, 1),
    Sketcher.Constraint("Tangent", 30, 2, 31, 1),
    Sketcher.Constraint("Tangent", 31, 2, 32, 1),
    Sketcher.Constraint("Tangent", 32, 2, 29, 1),
    Sketcher.Constraint("Tangent", 33, 2, 34, 1),
    Sketcher.Constraint("Tangent", 34, 2, 35, 1),
    Sketcher.Constraint("Tangent", 35, 2, 36, 1),
    Sketcher.Constraint("Tangent", 36, 2, 33, 1),
    Sketcher.Constraint("Tangent", 37, 2, 38, 1),
    Sketcher.Constraint("Tangent", 38, 2, 39, 1),
    Sketcher.Constraint("Tangent", 39, 2, 40, 1),
    Sketcher.Constraint("Tangent", 40, 2, 37, 1),
    Sketcher.Constraint("Vertical", 18),
    Sketcher.Constraint("Vertical", 20),
    Sketcher.Constraint("Vertical", 22),
    Sketcher.Constraint("Vertical", 24),
    Sketcher.Constraint("Vertical", 26),
    Sketcher.Constraint("Vertical", 28),
    Sketcher.Constraint("Vertical", 30),
    Sketcher.Constraint("Vertical", 32),
    Sketcher.Constraint("Vertical", 34),
    Sketcher.Constraint("Vertical", 36),
    Sketcher.Constraint("Vertical", 38),
    Sketcher.Constraint("Vertical", 40),
    Sketcher.Constraint("Equal", 0, 1),
    Sketcher.Constraint("Equal", 1, 2),
    Sketcher.Constraint("Equal", 2, 3),
    Sketcher.Constraint("Equal", 3, 5),
    Sketcher.Constraint("Equal", 5, 6),
    Sketcher.Constraint("Equal", 6, 8),
    Sketcher.Constraint("Equal", 8, 9),
    Sketcher.Constraint("Equal", 9, 10),
    Sketcher.Constraint("Equal", 10, 11),
    Sketcher.Constraint("Equal", 11, 12),
    Sketcher.Constraint("Equal", 12, 13),
    Sketcher.Constraint("Equal", 13, 14),
    Sketcher.Constraint("Equal", 14, 15),
    Sketcher.Constraint("Equal", 15, 16),
    Sketcher.Constraint("Equal", 19, 25),
    Sketcher.Constraint("Equal", 23, 29),
    Sketcher.Constraint("Equal", 31, 37),
    Sketcher.Constraint("Horizontal", 0, 3, 1, 3),
    Sketcher.Constraint("Horizontal", 2, 3, 3, 3),
    Sketcher.Constraint("Horizontal", 5, 3, 6, 3),
    Sketcher.Constraint("Horizontal", 7, 3, 8, 3),
    Sketcher.Constraint("Horizontal", 9, 3, 10, 3),
    Sketcher.Constraint("Horizontal", 11, 3, 13, 3),
    Sketcher.Constraint("Horizontal", 12, 3, 14, 3),
    Sketcher.Constraint("Horizontal", 15, 3, 16, 3),
    Sketcher.Constraint("Horizontal", 19, 3, 25, 3),
    Sketcher.Constraint("Horizontal", 17, 3, 27, 3),
    Sketcher.Constraint("Vertical", 0, 3, 5, 3),
    Sketcher.Constraint("Vertical", 1, 3, 6, 3),
    Sketcher.Constraint("Vertical", 9, 3, 11, 3),
    Sketcher.Constraint("Vertical", 7, 3, 12, 3),
    Sketcher.Constraint("Vertical", 10, 3, 13, 3),
    Sketcher.Constraint("Vertical", 8, 3, 14, 3),
    Sketcher.Constraint("Vertical", 2, 3, 15, 3),
    Sketcher.Constraint("Vertical", 3, 3, 16, 3),
    Sketcher.Constraint("Vertical", 31, 3, 37, 3),
    Sketcher.Constraint("Equal", 24, 30),
    Sketcher.Constraint("Equal", 36, 38),
    Sketcher.Constraint("Diameter", 4, Q("52 mm")),
    Sketcher.Constraint("Radius", 17, Q("1 mm")),
    Sketcher.Constraint("Diameter", 0, Q("3.5 mm")),
    Sketcher.Constraint("Diameter", 7, Q("3.6 mm")),
    Sketcher.Constraint("Radius", 33, Q("1.6 mm")),
    Sketcher.Constraint("DistanceY", 18, 2, 18, 1, Q("35 mm")),
    Sketcher.Constraint("DistanceY", 22, 2, 22, 1, Q("25 mm")),
    Sketcher.Constraint("DistanceY", 34, 2, 34, 1, Q("14 mm")),
    Sketcher.Constraint("Radius", 21, Q("1.65 mm")),
    Sketcher.Constraint("DistanceX", 1, 3, 0, 3, Q("72 mm")),
    Sketcher.Constraint("DistanceX", 1, 3, 2, 3, Q("54 mm")),
    Sketcher.Constraint("DistanceX", 3, 3, 2, 3, Q("36 mm")),
    Sketcher.Constraint("DistanceX", 4, 3, 0, 3, Q("36 mm")),
    Sketcher.Constraint("DistanceY", 4, 3, 0, 3, Q("36 mm")),
    Sketcher.Constraint("DistanceY", 5, 3, 4, 3, Q("36 mm")),
    Sketcher.Constraint("DistanceX", 8, 3, 7, 3, Q("54 mm")),
    Sketcher.Constraint("DistanceY", 11, 3, 9, 3, Q("36 mm")),
    Sketcher.Constraint("DistanceY", 12, 3, 7, 3, Q("54 mm")),
    Sketcher.Constraint("DistanceY", 4, 3, -1, 1, Q("153.1 mm")),
    Sketcher.Constraint("DistanceX", -1, 1, 0, 3, Q("111 mm")),
    Sketcher.Constraint("DistanceX", -1, 1, 7, 3, Q("102 mm")),
    Sketcher.Constraint("DistanceY", 7, 3, 0, 3, Q("9 mm")),
    Sketcher.Constraint("DistanceY", 9, 3, 7, 3, Q("9 mm")),
    Sketcher.Constraint("DistanceY", 2, 3, -1, 1, Q("121.92 mm")),
    Sketcher.Constraint("DistanceX", -1, 1, 9, 3, Q("106.18 mm")),
    Sketcher.Constraint("DistanceX", -1, 1, 10, 3, Q("43.82 mm")),
    Sketcher.Constraint("DistanceY", 15, 3, -1, 1, Q("184.28 mm")),
    Sketcher.Constraint("DistanceX", 29, 3, 25, 3, Q("22.67 mm")),
    Sketcher.Constraint("DistanceX", -1, 1, 17, 3, Q("6.786 mm")),
    Sketcher.Constraint("DistanceY", 17, 3, -1, 1, Q("144.529 mm")),
    Sketcher.Constraint("DistanceY", 29, 3, -1, 1, Q("183.657 mm")),
    Sketcher.Constraint("DistanceY", 37, 3, -1, 1, Q("116.623 mm")),
    Sketcher.Constraint("DistanceX", -1, 1, 21, 3, Q("29.0837 mm")),
    Sketcher.Constraint("DistanceY", 21, 3, -1, 1, Q("157.4682 mm")),
    Sketcher.Constraint("DistanceX", -1, 1, 25, 3, Q("143.5364 mm")),
    Sketcher.Constraint("DistanceX", -1, 1, 33, 3, Q("28.9774 mm")),
    Sketcher.Constraint("DistanceY", 33, 3, -1, 1, Q("116.6542 mm")),
])
pocket8 = body.newObject("PartDesign::Pocket", "Pocket007")
pocket8.Profile = sketch9
pocket8.Length = 2

# Sketch on XY plane
sketch10 = body.newObject("Sketcher::SketchObject", "Sketch009")
sketch10.AttachmentSupport = (doc.getObject("XY_Plane"), [""])
sketch10.MapMode = "FlatFace"
sketch10.AttachmentOffset = App.Placement(Vector(0, 0, 2), App.Rotation())
sketch10.addGeometry([
    Part.Circle(Vector(30, -207.5, 0), Vector(0, 0, 1), 1.8),
    Part.Circle(Vector(60, -207.5, 0), Vector(0, 0, 1), 1.8),
    Part.Circle(Vector(90, -207.5, 0), Vector(0, 0, 1), 1.8),
    Part.Circle(Vector(120, -207.5, 0), Vector(0, 0, 1), 1.8),
], False)
sketch10.addConstraint([
    Sketcher.Constraint("Equal", 0, 1),
    Sketcher.Constraint("Equal", 1, 2),
    Sketcher.Constraint("Equal", 2, 3),
    Sketcher.Constraint("Horizontal", 0, 3, 1, 3),
    Sketcher.Constraint("Horizontal", 1, 3, 2, 3),
    Sketcher.Constraint("Horizontal", 2, 3, 3, 3),
    Sketcher.Constraint("Diameter", 0, Q("3.5 mm")),
    Sketcher.Constraint("DistanceX", -1, 1, 0, 3, Q("30 mm")),
    Sketcher.Constraint("DistanceX", 0, 3, 1, 3, Q("30 mm")),
    Sketcher.Constraint("DistanceX", 1, 3, 2, 3, Q("30 mm")),
    Sketcher.Constraint("DistanceX", 2, 3, 3, 3, Q("30 mm")),
    Sketcher.Constraint("DistanceY", 0, 3, -1, 1, Q("207.5 mm")),
])
pocket9 = body.newObject("PartDesign::Pocket", "Pocket008")
pocket9.Profile = sketch10
pocket9.Length = 2
doc.recompute()

fillet = body.newObject("PartDesign::Fillet", "Fillet")
fillet.Base = (pocket9, edges_at(pocket9, [
    (139.86, -34.95, 1),
    (150, -34.95, 1),
    (150, -67.955, 1),
    (139.86, -67.955, 1),
    (10.14, -67.955, 1),
    (0, -67.955, 1),
    (0, -34.95, 1),
    (10.14, -34.95, 1),
    (150, 0, 1),
    (0, 0, 1),
    (150, -215, 1),
    (0, -215, 1),
]))
fillet.Radius = 2

doc.recompute()
